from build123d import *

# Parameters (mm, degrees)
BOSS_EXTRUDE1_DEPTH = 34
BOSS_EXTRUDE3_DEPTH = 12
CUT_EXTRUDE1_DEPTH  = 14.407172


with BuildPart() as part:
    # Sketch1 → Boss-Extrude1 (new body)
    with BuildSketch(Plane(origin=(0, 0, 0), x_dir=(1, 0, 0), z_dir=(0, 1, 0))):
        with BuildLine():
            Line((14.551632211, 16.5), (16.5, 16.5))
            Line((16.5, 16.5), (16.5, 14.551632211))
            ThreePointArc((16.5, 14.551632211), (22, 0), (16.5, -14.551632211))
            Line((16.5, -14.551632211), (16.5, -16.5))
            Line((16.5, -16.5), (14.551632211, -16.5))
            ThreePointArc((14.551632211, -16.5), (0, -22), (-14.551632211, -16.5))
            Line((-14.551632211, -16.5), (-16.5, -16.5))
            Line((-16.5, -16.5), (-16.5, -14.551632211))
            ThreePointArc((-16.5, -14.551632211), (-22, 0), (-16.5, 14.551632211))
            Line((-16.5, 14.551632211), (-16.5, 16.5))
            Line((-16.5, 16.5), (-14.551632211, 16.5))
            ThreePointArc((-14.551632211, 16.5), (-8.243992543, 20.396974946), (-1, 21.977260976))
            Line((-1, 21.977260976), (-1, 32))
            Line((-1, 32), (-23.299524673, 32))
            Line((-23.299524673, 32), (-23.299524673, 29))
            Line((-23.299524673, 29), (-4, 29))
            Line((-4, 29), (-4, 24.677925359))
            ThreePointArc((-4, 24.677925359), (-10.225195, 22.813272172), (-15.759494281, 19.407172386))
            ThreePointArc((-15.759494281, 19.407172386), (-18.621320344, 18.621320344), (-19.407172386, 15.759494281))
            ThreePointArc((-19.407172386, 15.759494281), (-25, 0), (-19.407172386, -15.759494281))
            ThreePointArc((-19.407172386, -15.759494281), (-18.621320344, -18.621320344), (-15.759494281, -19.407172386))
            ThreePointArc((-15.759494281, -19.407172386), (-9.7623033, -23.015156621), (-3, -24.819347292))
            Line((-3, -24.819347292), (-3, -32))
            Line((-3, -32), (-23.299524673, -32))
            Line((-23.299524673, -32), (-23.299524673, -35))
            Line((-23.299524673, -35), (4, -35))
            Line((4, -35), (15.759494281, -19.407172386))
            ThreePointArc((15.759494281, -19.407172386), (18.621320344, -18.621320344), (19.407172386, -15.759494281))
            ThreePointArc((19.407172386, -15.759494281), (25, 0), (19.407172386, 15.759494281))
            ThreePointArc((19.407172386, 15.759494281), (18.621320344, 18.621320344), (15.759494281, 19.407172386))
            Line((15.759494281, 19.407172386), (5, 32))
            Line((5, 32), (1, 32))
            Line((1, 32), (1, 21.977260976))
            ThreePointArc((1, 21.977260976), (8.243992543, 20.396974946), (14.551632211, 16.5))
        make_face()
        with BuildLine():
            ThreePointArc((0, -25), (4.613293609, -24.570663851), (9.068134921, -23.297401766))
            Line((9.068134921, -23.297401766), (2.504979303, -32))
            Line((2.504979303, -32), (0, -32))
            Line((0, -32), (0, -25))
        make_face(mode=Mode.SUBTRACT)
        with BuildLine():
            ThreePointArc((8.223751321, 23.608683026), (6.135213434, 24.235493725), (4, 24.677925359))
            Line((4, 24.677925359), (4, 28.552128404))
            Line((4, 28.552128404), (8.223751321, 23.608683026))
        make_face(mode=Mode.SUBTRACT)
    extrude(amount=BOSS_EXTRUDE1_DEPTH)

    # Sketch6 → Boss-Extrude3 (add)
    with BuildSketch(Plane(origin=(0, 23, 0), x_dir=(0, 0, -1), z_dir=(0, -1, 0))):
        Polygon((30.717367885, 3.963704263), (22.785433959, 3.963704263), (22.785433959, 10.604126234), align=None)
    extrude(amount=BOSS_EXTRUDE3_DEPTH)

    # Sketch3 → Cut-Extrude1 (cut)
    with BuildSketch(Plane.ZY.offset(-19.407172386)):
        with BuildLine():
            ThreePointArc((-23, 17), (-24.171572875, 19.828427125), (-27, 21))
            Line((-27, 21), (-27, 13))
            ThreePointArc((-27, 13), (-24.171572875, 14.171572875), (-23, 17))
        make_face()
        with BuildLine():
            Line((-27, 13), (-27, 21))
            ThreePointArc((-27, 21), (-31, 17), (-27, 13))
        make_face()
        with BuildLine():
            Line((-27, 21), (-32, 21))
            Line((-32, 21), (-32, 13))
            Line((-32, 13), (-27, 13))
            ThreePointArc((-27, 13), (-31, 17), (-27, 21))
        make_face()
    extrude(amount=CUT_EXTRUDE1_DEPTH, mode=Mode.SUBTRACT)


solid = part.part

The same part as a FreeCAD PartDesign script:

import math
import FreeCAD as App
import Part
import Sketcher

V = App.Vector


def add_polygon(sketch, points):
    """Adds a closed chain of lines whose ends are joined by coincident constraints."""
    first, n = sketch.GeometryCount, len(points)
    for a, b in zip(points, points[1:] + points[:1]):
        sketch.addGeometry(Part.LineSegment(App.Vector(*a, 0), App.Vector(*b, 0)), False)
    for i in range(n):
        sketch.addConstraint(Sketcher.Constraint("Coincident", first + i, 2, first + (i + 1) % n, 1))

doc = App.newDocument("Part")
body = doc.addObject("PartDesign::Body", "Body")

# Sketch on XZ plane
sketch1 = body.newObject("Sketcher::SketchObject", "Sketch")
sketch1.AttachmentSupport = (doc.getObject("XZ_Plane"), [""])
sketch1.MapMode = "FlatFace"
sketch1.addGeometry(Part.LineSegment(V(14.6, -16.5, 0), V(16.5, -16.5, 0)), False)
sketch1.addGeometry(Part.LineSegment(V(16.5, -16.5, 0), V(16.5, -14.6, 0)), False)
sketch1.addGeometry(Part.ArcOfCircle(Part.Circle(V(0, 0, 0), V(0, 0, 1), 22), math.radians(-41), math.radians(41)), False)
sketch1.addGeometry(Part.LineSegment(V(16.5, 14.6, 0), V(16.5, 16.5, 0)), False)
sketch1.addGeometry(Part.LineSegment(V(16.5, 16.5, 0), V(14.6, 16.5, 0)), False)
sketch1.addGeometry(Part.ArcOfCircle(Part.Circle(V(0, 0, 0), V(0, 0, 1), 22), math.radians(49), math.radians(131)), False)
sketch1.addGeometry(Part.LineSegment(V(-14.6, 16.5, 0), V(-16.5, 16.5, 0)), False)
sketch1.addGeometry(Part.LineSegment(V(-16.5, 16.5, 0), V(-16.5, 14.6, 0)), False)
sketch1.addGeometry(Part.ArcOfCircle(Part.Circle(V(0, 0, 0), V(0, 0, 1), 22), math.radians(139), math.radians(221)), False)
sketch1.addGeometry(Part.LineSegment(V(-16.5, -14.6, 0), V(-16.5, -16.5, 0)), False)
sketch1.addGeometry(Part.LineSegment(V(-16.5, -16.5, 0), V(-14.6, -16.5, 0)), False)
sketch1.addGeometry(Part.ArcOfCircle(Part.Circle(V(0, 0, 0), V(0, 0, 1), 22), math.radians(-131), math.radians(-93)), False)
sketch1.addGeometry(Part.LineSegment(V(-1, -22, 0), V(-1, -32, 0)), False)
sketch1.addGeometry(Part.LineSegment(V(-1, -32, 0), V(-23.3, -32, 0)), False)
sketch1.addGeometry(Part.LineSegment(V(-23.3, -32, 0), V(-23.3, -29, 0)), False)
sketch1.addGeometry(Part.LineSegment(V(-23.3, -29, 0), V(-4, -29, 0)), False)
sketch1.addGeometry(Part.LineSegment(V(-4, -29, 0), V(-4, -24.7, 0)), False)
sketch1.addGeometry(Part.ArcOfCircle(Part.Circle(V(0, 0, 0), V(0, 0, 1), 25), math.radians(-129), math.radians(-99)), False)
sketch1.addGeometry(Part.ArcOfCircle(Part.Circle(V(-16.5, -16.5, 0), V(0, 0, 1), 3), math.radians(166), math.radians(284)), False)
sketch1.addGeometry(Part.ArcOfCircle(Part.Circle(V(0, 0, 0), V(0, 0, 1), 25), math.radians(141), math.radians(219)), False)
sketch1.addGeometry(Part.ArcOfCircle(Part.Circle(V(-16.5, 16.5, 0), V(0, 0, 1), 3), math.radians(76), math.radians(194)), False)
sketch1.addGeometry(Part.ArcOfCircle(Part.Circle(V(0, 0, 0), V(0, 0, 1), 25), math.radians(97), math.radians(129)), False)
sketch1.addGeometry(Part.LineSegment(V(-3, 24.8, 0), V(-3, 32, 0)), False)
sketch1.addGeometry(Part.LineSegment(V(-3, 32, 0), V(-23.3, 32, 0)), False)
sketch1.addGeometry(Part.LineSegment(V(-23.3, 32, 0), V(-23.3, 35, 0)), False)
sketch1.addGeometry(Part.LineSegment(V(-23.3, 35, 0), V(4, 35, 0)), False)
sketch1.addGeometry(Part.LineSegment(V(4, 35, 0), V(15.8, 19.4, 0)), False)
sketch1.addGeometry(Part.ArcOfCircle(Part.Circle(V(16.5, 16.5, 0), V(0, 0, 1), 3), math.radians(-14), math.radians(104)), False)
sketch1.addGeometry(Part.ArcOfCircle(Part.Circle(V(0, 0, 0), V(0, 0, 1), 25), math.radians(-39), math.radians(39)), False)
sketch1.addGeometry(Part.ArcOfCircle(Part.Circle(V(16.5, -16.5, 0), V(0, 0, 1), 3), math.radians(-104), math.radians(14)), False)
sketch1.addGeometry(Part.LineSegment(V(15.8, -19.4, 0), V(5, -32, 0)), False)
sketch1.addGeometry(Part.LineSegment(V(5, -32, 0), V(1, -32, 0)), False)
sketch1.addGeometry(Part.LineSegment(V(1, -32, 0), V(1, -22, 0)), False)
sketch1.addGeometry(Part.ArcOfCircle(Part.Circle(V(0, 0, 0), V(0, 0, 1), 22), math.radians(-87), math.radians(-49)), False)
sketch1.addGeometry(Part.LineSegment(V(0, 32, 0), V(0, 25, 0)), False)
sketch1.addGeometry(Part.ArcOfCircle(Part.Circle(V(0, 0, 0), V(0, 0, 1), 25), math.radians(69), math.radians(90)), False)
sketch1.addGeometry(Part.LineSegment(V(9.1, 23.3, 0), V(2.5, 32, 0)), False)
sketch1.addGeometry(Part.LineSegment(V(2.5, 32, 0), V(0, 32, 0)), False)
sketch1.addGeometry(Part.LineSegment(V(4, -28.6, 0), V(8.2, -23.6, 0)), False)
sketch1.addGeometry(Part.ArcOfCircle(Part.Circle(V(0, 0, 0), V(0, 0, 1), 25), math.radians(-80.79), math.radians(-70.79)), False)
sketch1.addGeometry(Part.LineSegment(V(4, -24.7, 0), V(4, -28.6, 0)), False)
sketch1.addConstraint(Sketcher.Constraint("Coincident", 0, 2, 1, 1))
sketch1.addConstraint(Sketcher.Constraint("Coincident", 1, 2, 2, 1))
sketch1.addConstraint(Sketcher.Constraint("Coincident", 2, 2, 3, 1))
sketch1.addConstraint(Sketcher.Constraint("Coincident", 3, 2, 4, 1))
sketch1.addConstraint(Sketcher.Constraint("Coincident", 4, 2, 5, 1))
sketch1.addConstraint(Sketcher.Constraint("Coincident", 5, 2, 6, 1))
sketch1.addConstraint(Sketcher.Constraint("Coincident", 6, 2, 7, 1))
sketch1.addConstraint(Sketcher.Constraint("Coincident", 7, 2, 8, 1))
sketch1.addConstraint(Sketcher.Constraint("Coincident", 8, 2, 9, 1))
sketch1.addConstraint(Sketcher.Constraint("Coincident", 9, 2, 10, 1))
sketch1.addConstraint(Sketcher.Constraint("Coincident", 10, 2, 11, 1))
sketch1.addConstraint(Sketcher.Constraint("Coincident", 11, 2, 12, 1))
sketch1.addConstraint(Sketcher.Constraint("Coincident", 12, 2, 13, 1))
sketch1.addConstraint(Sketcher.Constraint("Coincident", 13, 2, 14, 1))
sketch1.addConstraint(Sketcher.Constraint("Coincident", 14, 2, 15, 1))
sketch1.addConstraint(Sketcher.Constraint("Coincident", 15, 2, 16, 1))
sketch1.addConstraint(Sketcher.Constraint("Coincident", 16, 2, 17, 2))
sketch1.addConstraint(Sketcher.Constraint("Coincident", 17, 1, 18, 2))
sketch1.addConstraint(Sketcher.Constraint("Coincident", 18, 1, 19, 2))
sketch1.addConstraint(Sketcher.Constraint("Coincident", 19, 1, 20, 2))
sketch1.addConstraint(Sketcher.Constraint("Coincident", 20, 1, 21, 2))
sketch1.addConstraint(Sketcher.Constraint("Coincident", 21, 1, 22, 1))
sketch1.addConstraint(Sketcher.Constraint("Coincident", 22, 2, 23, 1))
sketch1.addConstraint(Sketcher.Constraint("Coincident", 23, 2, 24, 1))
sketch1.addConstraint(Sketcher.Constraint("Coincident", 24, 2, 25, 1))
sketch1.addConstraint(Sketcher.Constraint("Coincident", 25, 2, 26, 1))
sketch1.addConstraint(Sketcher.Constraint("Coincident", 26, 2, 27, 2))
sketch1.addConstraint(Sketcher.Constraint("Coincident", 27, 1, 28, 2))
sketch1.addConstraint(Sketcher.Constraint("Coincident", 28, 1, 29, 2))
sketch1.addConstraint(Sketcher.Constraint("Coincident", 29, 1, 30, 1))
sketch1.addConstraint(Sketcher.Constraint("Coincident", 30, 2, 31, 1))
sketch1.addConstraint(Sketcher.Constraint("Coincident", 31, 2, 32, 1))
sketch1.addConstraint(Sketcher.Constraint("Coincident", 32, 2, 33, 1))
sketch1.addConstraint(Sketcher.Constraint("Coincident", 33, 2, 0, 1))
sketch1.addConstraint(Sketcher.Constraint("Coincident", 34, 2, 35, 2))
sketch1.addConstraint(Sketcher.Constraint("Coincident", 35, 1, 36, 1))
sketch1.addConstraint(Sketcher.Constraint("Coincident", 36, 2, 37, 1))
sketch1.addConstraint(Sketcher.Constraint("Coincident", 37, 2, 34, 1))
sketch1.addConstraint(Sketcher.Constraint("Coincident", 38, 2, 39, 2))
sketch1.addConstraint(Sketcher.Constraint("Coincident", 39, 1, 40, 1))
sketch1.addConstraint(Sketcher.Constraint("Coincident", 40, 2, 38, 1))
sketch1.addConstraint(Sketcher.Constraint("Horizontal", 0))
sketch1.addConstraint(Sketcher.Constraint("Vertical", 1))
sketch1.addConstraint(Sketcher.Constraint("Vertical", 3))
sketch1.addConstraint(Sketcher.Constraint("Horizontal", 4))
sketch1.addConstraint(Sketcher.Constraint("Horizontal", 6))
sketch1.addConstraint(Sketcher.Constraint("Vertical", 7))
sketch1.addConstraint(Sketcher.Constraint("Vertical", 9))
sketch1.addConstraint(Sketcher.Constraint("Horizontal", 10))
sketch1.addConstraint(Sketcher.Constraint("Vertical", 12))
sketch1.addConstraint(Sketcher.Constraint("Horizontal", 13))
sketch1.addConstraint(Sketcher.Constraint("Vertical", 14))
sketch1.addConstraint(Sketcher.Constraint("Horizontal", 15))
sketch1.addConstraint(Sketcher.Constraint("Vertical", 16))
sketch1.addConstraint(Sketcher.Constraint("Vertical", 22))
sketch1.addConstraint(Sketcher.Constraint("Horizontal", 23))
sketch1.addConstraint(Sketcher.Constraint("Vertical", 24))
sketch1.addConstraint(Sketcher.Constraint("Horizontal", 25))
sketch1.addConstraint(Sketcher.Constraint("Horizontal", 31))
sketch1.addConstraint(Sketcher.Constraint("Vertical", 32))
sketch1.addConstraint(Sketcher.Constraint("Vertical", 34))
sketch1.addConstraint(Sketcher.Constraint("Horizontal", 37))
sketch1.addConstraint(Sketcher.Constraint("Vertical", 40))
sketch1.addConstraint(Sketcher.Constraint("Coincident", 2, 3, -1, 1))
sketch1.addConstraint(Sketcher.Constraint("Coincident", 5, 3, -1, 1))
sketch1.addConstraint(Sketcher.Constraint("Coincident", 8, 3, -1, 1))
sketch1.addConstraint(Sketcher.Constraint("Coincident", 11, 3, -1, 1))
sketch1.addConstraint(Sketcher.Constraint("Coincident", 17, 3, -1, 1))
sketch1.addConstraint(Sketcher.Constraint("Coincident", 19, 3, -1, 1))
sketch1.addConstraint(Sketcher.Constraint("Coincident", 21, 3, -1, 1))
sketch1.addConstraint(Sketcher.Constraint("Coincident", 28, 3, -1, 1))
sketch1.addConstraint(Sketcher.Constraint("Coincident", 33, 3, -1, 1))
sketch1.addConstraint(Sketcher.Constraint("Coincident", 35, 3, -1, 1))
sketch1.addConstraint(Sketcher.Constraint("Coincident", 39, 3, -1, 1))
sketch1.addConstraint(Sketcher.Constraint("Coincident", 0, 2, 29, 3))
sketch1.addConstraint(Sketcher.Constraint("Coincident", 3, 2, 27, 3))
sketch1.addConstraint(Sketcher.Constraint("Coincident", 6, 2, 20, 3))
sketch1.addConstraint(Sketcher.Constraint("Coincident", 9, 2, 18, 3))
sketch1.addConstraint(Sketcher.Constraint("Equal", 2, 5))
sketch1.addConstraint(Sketcher.Constraint("Equal", 5, 8))
sketch1.addConstraint(Sketcher.Constraint("Equal", 8, 11))
sketch1.addConstraint(Sketcher.Constraint("Equal", 17, 19))
sketch1.addConstraint(Sketcher.Constraint("Equal", 18, 20))
sketch1.addConstraint(Sketcher.Constraint("Equal", 19, 21))
sketch1.addConstraint(Sketcher.Constraint("Equal", 20, 27))
sketch1.addConstraint(Sketcher.Constraint("Equal", 21, 28))
sketch1.addConstraint(Sketcher.Constraint("Equal", 27, 29))
sketch1.addConstraint(Sketcher.Constraint("Equal", 11, 33))
sketch1.addConstraint(Sketcher.Constraint("Equal", 28, 35))
sketch1.addConstraint(Sketcher.Constraint("Equal", 35, 39))
sketch1.addConstraint(Sketcher.Constraint("Symmetric", 18, 3, 27, 3, -1, 1))
sketch1.addConstraint(Sketcher.Constraint("Symmetric", 20, 3, 29, 3, -1, 1))
sketch1.addConstraint(Sketcher.Constraint("Symmetric", 20, 3, 27, 3, -2))
sketch1.addConstraint(Sketcher.Constraint("Symmetric", 12, 2, 31, 2, -2))
sketch1.addConstraint(Sketcher.Constraint("Symmetric", 13, 2, 23, 2, -1))
sketch1.addConstraint(Sketcher.Constraint("PointOnObject", 34, 2, -2))
sketch1.addConstraint(Sketcher.Constraint("Parallel", 26, 36))
sketch1.addConstraint(Sketcher.Constraint("Parallel", 30, 38))
sketch1.addConstraint(Sketcher.Constraint("Horizontal", 20, 1, 26, 2))
sketch1.addConstraint(Sketcher.Constraint("Horizontal", 17, 1, 29, 1))
sketch1.addConstraint(Sketcher.Constraint("Horizontal", 23, 2, 36, 2))
sketch1.addConstraint(Sketcher.Constraint("Horizontal", 16, 2, 39, 1))
sketch1.addConstraint(Sketcher.Constraint("Vertical", 25, 2, 39, 1))
sketch1.addConstraint(Sketcher.Constraint("Equal", 10, 1))
sketch1.addConstraint(Sketcher.Constraint("Equal", 14, 24))
sketch1.addConstraint(Sketcher.Constraint("Radius", 2, 22.0))
sketch1.addConstraint(Sketcher.Constraint("Radius", 17, 25.0))
sketch1.addConstraint(Sketcher.Constraint("Radius", 18, 3.0))
sketch1.addConstraint(Sketcher.Constraint("DistanceX", 31, 2, 31, 1, 4.0))
sketch1.addConstraint(Sketcher.Constraint("DistanceY", 14, 1, 14, 2, 3.0))
sketch1.addConstraint(Sketcher.Constraint("DistanceY", 34, 2, 34, 1, 7.0))
sketch1.addConstraint(Sketcher.Constraint("DistanceX", 11, 2, -1, 1, 1.0))
sketch1.addConstraint(Sketcher.Constraint("DistanceX", 15, 2, -1, 1, 4.0))
sketch1.addConstraint(Sketcher.Constraint("DistanceX", 21, 1, -1, 1, 3.0))
sketch1.addConstraint(Sketcher.Constraint("DistanceX", 18, 3, -1, 1, 16.5))
sketch1.addConstraint(Sketcher.Constraint("DistanceX", 37, 2, 37, 1, 2.504979))
sketch1.addConstraint(Sketcher.Constraint("DistanceX", 13, 2, 13, 1, 22.299525))
sketch1.addConstraint(Sketcher.Constraint("DistanceY", 40, 2, 40, 1, 3.874203))
pad1 = body.newObject("PartDesign::Pad", "Pad")
pad1.Profile = sketch1
pad1.Length = 34
pad1.Reversed = True

# Sketch on XZ plane
sketch2 = body.newObject("Sketcher::SketchObject", "Sketch001")
sketch2.AttachmentSupport = (doc.getObject("XZ_Plane"), [""])
sketch2.MapMode = "FlatFace"
sketch2.AttachmentOffset = App.Placement(V(0, 0, -23), App.Rotation())
add_polygon(sketch2, [(4, -23), (4, -31), (11, -23)])  # lines 0-2
sketch2.addConstraint(Sketcher.Constraint("Vertical", 0))
sketch2.addConstraint(Sketcher.Constraint("Horizontal", 2))
sketch2.addConstraint(Sketcher.Constraint("Distance", 1, 10.344601))
sketch2.addConstraint(Sketcher.Constraint("DistanceX", 2, 2, 2, 1, 6.640422))
sketch2.addConstraint(Sketcher.Constraint("DistanceX", -1, 1, 0, 2, 3.963704))
sketch2.addConstraint(Sketcher.Constraint("DistanceY", 0, 2, -1, 1, 30.717368))
pad2 = body.newObject("PartDesign::Pad", "Pad001")
pad2.Profile = sketch2
pad2.Length = 12

# Sketch on YZ plane
sketch3 = body.newObject("Sketcher::SketchObject", "Sketch002")
sketch3.AttachmentSupport = (doc.getObject("YZ_Plane"), [""])
sketch3.MapMode = "FlatFace"
sketch3.AttachmentOffset = App.Placement(V(0, 0, 19.407172), App.Rotation())
sketch3.addGeometry(Part.ArcOfCircle(Part.Circle(V(17, -27, 0), V(0, 0, 1), 4), math.radians(0), math.radians(90)), False)
sketch3.addGeometry(Part.LineSegment(V(21, -27, 0), V(21, -32, 0)), False)
sketch3.addGeometry(Part.LineSegment(V(21, -32, 0), V(13, -32, 0)), False)
sketch3.addGeometry(Part.LineSegment(V(13, -32, 0), V(13, -27, 0)), False)
sketch3.addGeometry(Part.ArcOfCircle(Part.Circle(V(17, -27, 0), V(0, 0, 1), 4), math.radians(90), math.radians(180)), False)
sketch3.addConstraint(Sketcher.Constraint("Tangent", 0, 1, 1, 1))
sketch3.addConstraint(Sketcher.Constraint("Coincident", 1, 2, 2, 1))
sketch3.addConstraint(Sketcher.Constraint("Coincident", 2, 2, 3, 1))
sketch3.addConstraint(Sketcher.Constraint("Tangent", 3, 2, 4, 2))
sketch3.addConstraint(Sketcher.Constraint("Tangent", 4, 1, 0, 2))
sketch3.addConstraint(Sketcher.Constraint("Vertical", 1))
sketch3.addConstraint(Sketcher.Constraint("Horizontal", 2))
sketch3.addConstraint(Sketcher.Constraint("Vertical", 3))
sketch3.addConstraint(Sketcher.Constraint("Equal", 0, 4))
sketch3.addConstraint(Sketcher.Constraint("Vertical", 0, 3, 4, 1))
sketch3.addConstraint(Sketcher.Constraint("Radius", 0, 4.0))
sketch3.addConstraint(Sketcher.Constraint("DistanceY", 1, 2, 1, 1, 5.0))
sketch3.addConstraint(Sketcher.Constraint("DistanceX", -1, 1, 0, 3, 17.0))
sketch3.addConstraint(Sketcher.Constraint("DistanceY", 0, 3, -1, 1, 27.0))
pocket1 = body.newObject("PartDesign::Pocket", "Pocket")
pocket1.Profile = sketch3
pocket1.Length = 14.407172

doc.recompute()
